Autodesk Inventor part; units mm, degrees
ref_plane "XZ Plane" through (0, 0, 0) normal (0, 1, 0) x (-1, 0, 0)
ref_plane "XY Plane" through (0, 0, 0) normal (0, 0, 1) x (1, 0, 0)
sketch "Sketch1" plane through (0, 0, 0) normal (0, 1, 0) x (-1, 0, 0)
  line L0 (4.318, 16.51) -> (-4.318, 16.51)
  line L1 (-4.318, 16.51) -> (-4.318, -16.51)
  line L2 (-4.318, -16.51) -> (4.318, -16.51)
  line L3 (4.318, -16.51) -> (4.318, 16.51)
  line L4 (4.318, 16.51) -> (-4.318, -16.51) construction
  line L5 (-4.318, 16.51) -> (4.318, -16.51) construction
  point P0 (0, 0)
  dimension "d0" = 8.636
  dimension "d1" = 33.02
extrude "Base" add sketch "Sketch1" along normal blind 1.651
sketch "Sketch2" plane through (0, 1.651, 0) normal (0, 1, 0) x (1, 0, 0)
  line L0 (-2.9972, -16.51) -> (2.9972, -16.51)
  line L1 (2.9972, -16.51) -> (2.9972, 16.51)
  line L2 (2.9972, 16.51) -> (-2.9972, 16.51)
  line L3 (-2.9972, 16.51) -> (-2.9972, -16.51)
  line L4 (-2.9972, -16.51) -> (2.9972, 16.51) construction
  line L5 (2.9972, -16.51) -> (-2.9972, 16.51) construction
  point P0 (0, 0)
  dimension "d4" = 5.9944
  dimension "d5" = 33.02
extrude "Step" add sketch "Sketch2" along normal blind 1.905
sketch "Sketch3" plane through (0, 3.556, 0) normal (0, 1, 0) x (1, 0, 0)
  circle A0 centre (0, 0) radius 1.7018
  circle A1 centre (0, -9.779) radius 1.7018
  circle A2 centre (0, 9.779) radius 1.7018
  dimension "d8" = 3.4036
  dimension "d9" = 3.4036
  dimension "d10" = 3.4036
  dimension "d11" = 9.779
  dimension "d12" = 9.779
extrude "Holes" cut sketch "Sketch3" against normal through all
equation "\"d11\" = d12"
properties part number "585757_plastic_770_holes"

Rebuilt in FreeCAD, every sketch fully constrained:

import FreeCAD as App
import Part
import Sketcher
from FreeCAD import Vector
Q = App.Units.Quantity


def add_polygon(sketch, points):
    """Adds a closed chain of lines whose ends are joined by coincident constraints."""
    first, n = sketch.GeometryCount, len(points)
    for a, b in zip(points, points[1:] + points[:1]):
        sketch.addGeometry(Part.LineSegment(App.Vector(*a, 0), App.Vector(*b, 0)), False)
    for i in range(n):
        sketch.addConstraint(Sketcher.Constraint("Coincident", first + i, 2, first + (i + 1) % n, 1))

doc = App.newDocument("Part")
body = doc.addObject("PartDesign::Body", "Body")

# Sketch on XZ plane
sketch1 = body.newObject("Sketcher::SketchObject", "Sketch")
sketch1.AttachmentSupport = (doc.getObject("XZ_Plane"), [""])
sketch1.MapMode = "FlatFace"
add_polygon(sketch1, [(-4, -17), (-4, 17), (4, 17), (4, -17)])  # lines 0-3
sketch1.addConstraint([
    Sketcher.Constraint("Vertical", 0),
    Sketcher.Constraint("Horizontal", 1),
    Sketcher.Constraint("Vertical", 2),
    Sketcher.Constraint("Horizontal", 3),
    Sketcher.Constraint("Symmetric", 0, 2, 2, 2, -1, 1),
    Sketcher.Constraint("DistanceY", 0, 1, 0, 2, Q("1.3 in")),
    Sketcher.Constraint("DistanceX", 1, 1, 1, 2, Q("0.34 in")),
])
pad1 = body.newObject("PartDesign::Pad", "Pad")
pad1.Profile = sketch1
pad1.Length = Q("0.065 in")
pad1.Reversed = True

# Sketch on XZ plane
sketch2 = body.newObject("Sketcher::SketchObject", "Sketch001")
sketch2.AttachmentSupport = (doc.getObject("XZ_Plane"), [""])
sketch2.MapMode = "FlatFace"
sketch2.AttachmentOffset = App.Placement(Vector(0, 0, -0.065 * 25.4), App.Rotation())
add_polygon(sketch2, [(-3, -17), (-3, 17), (3, 17), (3, -17)])  # lines 0-3
sketch2.addConstraint([
    Sketcher.Constraint("Vertical", 0),
    Sketcher.Constraint("Horizontal", 1),
    Sketcher.Constraint("Vertical", 2),
    Sketcher.Constraint("Horizontal", 3),
    Sketcher.Constraint("Symmetric", 0, 2, 2, 2, -1, 1),
    Sketcher.Constraint("DistanceY", 0, 1, 0, 2, Q("1.3 in")),
    Sketcher.Constraint("DistanceX", 1, 1, 1, 2, Q("0.236 in")),
])
pad2 = body.newObject("PartDesign::Pad", "Pad001")
pad2.Profile = sketch2
pad2.Length = Q("0.075 in")
pad2.Reversed = True

# Sketch on XZ plane
sketch3 = body.newObject("Sketcher::SketchObject", "Sketch002")
sketch3.AttachmentSupport = (doc.getObject("XZ_Plane"), [""])
sketch3.MapMode = "FlatFace"
sketch3.AttachmentOffset = App.Placement(Vector(0, 0, -0.14 * 25.4), App.Rotation())
sketch3.addGeometry([
    Part.Circle(Vector(0, 0, 0), Vector(0, 0, 1), 1.7),
    Part.Circle(Vector(0, 9.8, 0), Vector(0, 0, 1), 1.7),
    Part.Circle(Vector(0, -9.8, 0), Vector(0, 0, 1), 1.7),
], False)
sketch3.addConstraint([
    Sketcher.Constraint("Coincident", 0, 3, -1, 1),
    Sketcher.Constraint("Equal", 0, 1),
    Sketcher.Constraint("Equal", 1, 2),
    Sketcher.Constraint("Symmetric", 1, 3, 2, 3, -1, 1),
    Sketcher.Constraint("PointOnObject", 1, 3, -2),
    Sketcher.Constraint("Diameter", 0, Q("0.134 in")),
    Sketcher.Constraint("DistanceY", -1, 1, 1, 3, Q("0.385 in")),
])
pocket1 = body.newObject("PartDesign::Pocket", "Pocket")
pocket1.Profile = sketch3
pocket1.Type = "ThroughAll"
pocket1.Reversed = True

doc.recompute()
